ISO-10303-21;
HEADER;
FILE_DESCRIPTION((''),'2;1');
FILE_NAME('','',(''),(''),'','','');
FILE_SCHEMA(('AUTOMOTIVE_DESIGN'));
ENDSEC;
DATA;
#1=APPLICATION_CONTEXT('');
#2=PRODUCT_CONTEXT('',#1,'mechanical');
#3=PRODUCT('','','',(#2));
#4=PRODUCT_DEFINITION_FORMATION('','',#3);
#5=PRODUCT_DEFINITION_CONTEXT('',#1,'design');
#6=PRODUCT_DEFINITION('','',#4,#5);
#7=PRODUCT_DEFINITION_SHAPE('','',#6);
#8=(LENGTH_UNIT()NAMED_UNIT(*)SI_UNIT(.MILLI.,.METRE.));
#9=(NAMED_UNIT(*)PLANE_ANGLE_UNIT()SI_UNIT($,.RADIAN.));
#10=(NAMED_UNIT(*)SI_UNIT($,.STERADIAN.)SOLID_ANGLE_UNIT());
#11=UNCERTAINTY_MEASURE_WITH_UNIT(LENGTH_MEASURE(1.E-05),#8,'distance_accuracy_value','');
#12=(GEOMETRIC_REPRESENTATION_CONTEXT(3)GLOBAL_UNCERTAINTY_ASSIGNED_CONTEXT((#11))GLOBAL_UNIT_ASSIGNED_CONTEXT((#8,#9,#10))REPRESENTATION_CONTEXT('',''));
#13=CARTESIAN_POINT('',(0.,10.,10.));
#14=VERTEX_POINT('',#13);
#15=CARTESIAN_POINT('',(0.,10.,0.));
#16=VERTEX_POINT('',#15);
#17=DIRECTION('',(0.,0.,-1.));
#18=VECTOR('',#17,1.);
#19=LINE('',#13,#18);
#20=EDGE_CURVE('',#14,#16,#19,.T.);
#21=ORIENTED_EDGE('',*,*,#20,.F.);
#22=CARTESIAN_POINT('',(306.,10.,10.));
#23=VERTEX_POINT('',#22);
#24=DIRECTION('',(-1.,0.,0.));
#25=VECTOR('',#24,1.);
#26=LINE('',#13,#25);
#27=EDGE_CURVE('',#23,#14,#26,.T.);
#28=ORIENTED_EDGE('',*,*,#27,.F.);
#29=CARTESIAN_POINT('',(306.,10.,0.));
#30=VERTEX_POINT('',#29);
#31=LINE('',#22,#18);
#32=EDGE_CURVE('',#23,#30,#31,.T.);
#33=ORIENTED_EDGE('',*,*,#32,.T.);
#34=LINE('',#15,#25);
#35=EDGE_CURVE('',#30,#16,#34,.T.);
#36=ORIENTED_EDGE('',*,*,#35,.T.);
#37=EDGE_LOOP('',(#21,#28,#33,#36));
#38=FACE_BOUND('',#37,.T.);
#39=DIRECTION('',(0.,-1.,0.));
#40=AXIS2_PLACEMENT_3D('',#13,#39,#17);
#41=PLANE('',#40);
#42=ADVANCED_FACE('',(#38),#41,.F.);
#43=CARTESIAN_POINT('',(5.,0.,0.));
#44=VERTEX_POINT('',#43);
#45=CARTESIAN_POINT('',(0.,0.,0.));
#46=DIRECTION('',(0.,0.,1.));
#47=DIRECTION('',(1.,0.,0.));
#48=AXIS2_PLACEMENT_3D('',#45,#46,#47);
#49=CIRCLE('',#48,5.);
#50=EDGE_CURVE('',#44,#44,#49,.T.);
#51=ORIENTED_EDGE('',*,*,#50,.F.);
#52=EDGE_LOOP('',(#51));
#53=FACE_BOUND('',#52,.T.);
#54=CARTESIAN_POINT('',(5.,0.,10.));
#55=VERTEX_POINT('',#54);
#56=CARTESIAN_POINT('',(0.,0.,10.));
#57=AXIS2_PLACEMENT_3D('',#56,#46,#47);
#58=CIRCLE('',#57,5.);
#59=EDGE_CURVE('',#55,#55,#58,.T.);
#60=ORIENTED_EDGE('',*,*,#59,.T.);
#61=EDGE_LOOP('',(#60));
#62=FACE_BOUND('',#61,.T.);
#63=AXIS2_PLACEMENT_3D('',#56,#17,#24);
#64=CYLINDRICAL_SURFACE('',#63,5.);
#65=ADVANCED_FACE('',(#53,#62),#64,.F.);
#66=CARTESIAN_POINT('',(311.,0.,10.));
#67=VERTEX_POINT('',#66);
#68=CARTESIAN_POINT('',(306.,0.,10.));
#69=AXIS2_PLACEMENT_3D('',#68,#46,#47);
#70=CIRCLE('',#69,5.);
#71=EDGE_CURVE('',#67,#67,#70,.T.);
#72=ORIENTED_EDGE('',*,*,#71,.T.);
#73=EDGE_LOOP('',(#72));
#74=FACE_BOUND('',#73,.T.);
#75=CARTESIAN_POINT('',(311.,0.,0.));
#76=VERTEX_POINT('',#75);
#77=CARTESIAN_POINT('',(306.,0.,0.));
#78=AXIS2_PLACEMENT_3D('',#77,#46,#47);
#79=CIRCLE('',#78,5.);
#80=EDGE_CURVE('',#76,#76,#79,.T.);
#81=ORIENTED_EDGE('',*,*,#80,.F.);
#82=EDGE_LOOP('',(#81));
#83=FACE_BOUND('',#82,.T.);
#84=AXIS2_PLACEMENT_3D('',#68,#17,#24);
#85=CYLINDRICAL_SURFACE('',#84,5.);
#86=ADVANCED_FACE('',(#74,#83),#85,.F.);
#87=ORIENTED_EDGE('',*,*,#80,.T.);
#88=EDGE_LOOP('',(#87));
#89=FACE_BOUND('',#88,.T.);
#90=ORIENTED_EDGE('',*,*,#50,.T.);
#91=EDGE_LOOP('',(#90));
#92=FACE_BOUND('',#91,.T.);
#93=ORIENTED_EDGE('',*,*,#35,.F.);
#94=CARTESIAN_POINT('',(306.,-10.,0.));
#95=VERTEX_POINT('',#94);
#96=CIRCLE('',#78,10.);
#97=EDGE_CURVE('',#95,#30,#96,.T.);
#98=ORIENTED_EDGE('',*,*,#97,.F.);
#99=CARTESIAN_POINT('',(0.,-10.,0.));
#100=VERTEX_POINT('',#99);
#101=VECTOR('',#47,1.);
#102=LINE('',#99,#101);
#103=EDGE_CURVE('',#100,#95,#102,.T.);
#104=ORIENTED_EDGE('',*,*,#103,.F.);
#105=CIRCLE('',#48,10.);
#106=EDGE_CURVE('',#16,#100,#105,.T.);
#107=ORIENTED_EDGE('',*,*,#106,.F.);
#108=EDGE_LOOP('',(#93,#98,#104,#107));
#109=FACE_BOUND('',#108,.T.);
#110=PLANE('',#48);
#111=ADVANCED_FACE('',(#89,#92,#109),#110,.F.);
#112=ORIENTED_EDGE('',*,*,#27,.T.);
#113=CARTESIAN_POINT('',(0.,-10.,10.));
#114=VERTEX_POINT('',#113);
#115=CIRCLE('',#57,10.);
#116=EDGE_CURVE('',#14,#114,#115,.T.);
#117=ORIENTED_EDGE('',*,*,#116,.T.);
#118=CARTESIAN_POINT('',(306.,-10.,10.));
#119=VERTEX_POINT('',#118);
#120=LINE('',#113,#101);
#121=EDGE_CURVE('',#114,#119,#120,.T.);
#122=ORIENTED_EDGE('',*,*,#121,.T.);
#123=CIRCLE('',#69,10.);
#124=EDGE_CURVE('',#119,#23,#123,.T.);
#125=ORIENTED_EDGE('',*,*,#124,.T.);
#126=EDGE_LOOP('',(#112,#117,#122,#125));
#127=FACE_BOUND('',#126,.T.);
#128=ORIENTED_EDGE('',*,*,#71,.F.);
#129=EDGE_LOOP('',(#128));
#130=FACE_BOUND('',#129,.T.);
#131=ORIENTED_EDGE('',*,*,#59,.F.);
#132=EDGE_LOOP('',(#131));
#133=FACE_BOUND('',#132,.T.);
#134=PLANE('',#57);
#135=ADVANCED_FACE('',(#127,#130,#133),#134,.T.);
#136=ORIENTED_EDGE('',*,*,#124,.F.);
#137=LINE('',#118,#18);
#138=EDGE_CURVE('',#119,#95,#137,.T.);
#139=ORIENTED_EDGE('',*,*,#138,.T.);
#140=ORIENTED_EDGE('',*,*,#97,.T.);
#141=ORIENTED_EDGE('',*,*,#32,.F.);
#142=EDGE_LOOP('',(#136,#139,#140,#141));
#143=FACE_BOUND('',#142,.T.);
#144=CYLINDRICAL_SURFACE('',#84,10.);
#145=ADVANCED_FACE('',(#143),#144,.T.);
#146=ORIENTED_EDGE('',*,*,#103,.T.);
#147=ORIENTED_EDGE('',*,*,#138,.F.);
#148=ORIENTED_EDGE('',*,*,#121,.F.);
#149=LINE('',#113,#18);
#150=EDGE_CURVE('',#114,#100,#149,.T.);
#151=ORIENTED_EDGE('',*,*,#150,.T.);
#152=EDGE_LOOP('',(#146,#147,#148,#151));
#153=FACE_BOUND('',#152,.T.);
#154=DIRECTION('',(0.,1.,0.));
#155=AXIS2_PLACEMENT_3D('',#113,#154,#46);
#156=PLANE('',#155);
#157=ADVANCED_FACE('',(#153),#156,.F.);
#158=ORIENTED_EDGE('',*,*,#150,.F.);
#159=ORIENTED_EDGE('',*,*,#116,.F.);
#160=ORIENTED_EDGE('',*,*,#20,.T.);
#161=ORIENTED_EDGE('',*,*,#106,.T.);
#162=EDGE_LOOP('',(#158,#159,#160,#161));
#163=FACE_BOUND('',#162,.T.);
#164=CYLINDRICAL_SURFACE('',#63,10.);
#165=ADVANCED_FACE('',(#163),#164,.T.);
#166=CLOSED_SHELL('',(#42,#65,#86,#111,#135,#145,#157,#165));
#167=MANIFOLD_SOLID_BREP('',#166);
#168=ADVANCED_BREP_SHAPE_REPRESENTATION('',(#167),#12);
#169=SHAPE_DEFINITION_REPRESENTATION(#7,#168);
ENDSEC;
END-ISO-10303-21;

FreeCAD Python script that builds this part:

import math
import FreeCAD as App
import Part
import Sketcher
Q = App.Units.Quantity

doc = App.newDocument("Part")
body = doc.addObject("PartDesign::Body", "Body")

# Sketch on XY plane
sketch1 = doc.addObject("Sketcher::SketchObject", "Sketch")
body.addObject(sketch1)
sketch1.AttachmentSupport = (doc.XY_Plane, [""])
sketch1.MapMode = "FlatFace"
sketch1.addGeometry([
    Part.LineSegment(App.Vector(306, 10, 0), App.Vector(0, 10, 0)),  # 0
    Part.ArcOfCircle(Part.Circle(App.Vector(0, 0, 0), App.Vector(0, 0, 1), 10), math.radians(90), math.radians(270)),  # 1
    Part.LineSegment(App.Vector(0, -10, 0), App.Vector(306, -10, 0)),  # 2
    Part.ArcOfCircle(Part.Circle(App.Vector(306, 0, 0), App.Vector(0, 0, 1), 10), math.radians(-90), math.radians(90)),  # 3
    Part.Circle(App.Vector(306, 0, 0), App.Vector(0, 0, 1), 5),  # 4
    Part.Circle(App.Vector(0, 0, 0), App.Vector(0, 0, 1), 5),  # 5
], False)
sketch1.addConstraint([
    Sketcher.Constraint("Tangent", 0, 2, 1, 1),
    Sketcher.Constraint("Tangent", 1, 2, 2, 1),
    Sketcher.Constraint("Tangent", 2, 2, 3, 1),
    Sketcher.Constraint("Tangent", 3, 2, 0, 1),
    Sketcher.Constraint("Horizontal", 0),
    Sketcher.Constraint("Horizontal", 2),
    Sketcher.Constraint("Coincident", 1, 3, -1, 1),
    Sketcher.Constraint("Coincident", 5, 3, -1, 1),
    Sketcher.Constraint("Coincident", 4, 3, 3, 3),
    Sketcher.Constraint("Equal", 4, 5),
    Sketcher.Constraint("Diameter", 4, Q("10 mm")),
    Sketcher.Constraint("Radius", 1, Q("10 mm")),
    Sketcher.Constraint("DistanceX", 0, 2, 0, 1, Q("306 mm")),
])
pad1 = doc.addObject("PartDesign::Pad", "Pad")
body.addObject(pad1)
pad1.Profile = sketch1
pad1.Length = 10

doc.recompute()
